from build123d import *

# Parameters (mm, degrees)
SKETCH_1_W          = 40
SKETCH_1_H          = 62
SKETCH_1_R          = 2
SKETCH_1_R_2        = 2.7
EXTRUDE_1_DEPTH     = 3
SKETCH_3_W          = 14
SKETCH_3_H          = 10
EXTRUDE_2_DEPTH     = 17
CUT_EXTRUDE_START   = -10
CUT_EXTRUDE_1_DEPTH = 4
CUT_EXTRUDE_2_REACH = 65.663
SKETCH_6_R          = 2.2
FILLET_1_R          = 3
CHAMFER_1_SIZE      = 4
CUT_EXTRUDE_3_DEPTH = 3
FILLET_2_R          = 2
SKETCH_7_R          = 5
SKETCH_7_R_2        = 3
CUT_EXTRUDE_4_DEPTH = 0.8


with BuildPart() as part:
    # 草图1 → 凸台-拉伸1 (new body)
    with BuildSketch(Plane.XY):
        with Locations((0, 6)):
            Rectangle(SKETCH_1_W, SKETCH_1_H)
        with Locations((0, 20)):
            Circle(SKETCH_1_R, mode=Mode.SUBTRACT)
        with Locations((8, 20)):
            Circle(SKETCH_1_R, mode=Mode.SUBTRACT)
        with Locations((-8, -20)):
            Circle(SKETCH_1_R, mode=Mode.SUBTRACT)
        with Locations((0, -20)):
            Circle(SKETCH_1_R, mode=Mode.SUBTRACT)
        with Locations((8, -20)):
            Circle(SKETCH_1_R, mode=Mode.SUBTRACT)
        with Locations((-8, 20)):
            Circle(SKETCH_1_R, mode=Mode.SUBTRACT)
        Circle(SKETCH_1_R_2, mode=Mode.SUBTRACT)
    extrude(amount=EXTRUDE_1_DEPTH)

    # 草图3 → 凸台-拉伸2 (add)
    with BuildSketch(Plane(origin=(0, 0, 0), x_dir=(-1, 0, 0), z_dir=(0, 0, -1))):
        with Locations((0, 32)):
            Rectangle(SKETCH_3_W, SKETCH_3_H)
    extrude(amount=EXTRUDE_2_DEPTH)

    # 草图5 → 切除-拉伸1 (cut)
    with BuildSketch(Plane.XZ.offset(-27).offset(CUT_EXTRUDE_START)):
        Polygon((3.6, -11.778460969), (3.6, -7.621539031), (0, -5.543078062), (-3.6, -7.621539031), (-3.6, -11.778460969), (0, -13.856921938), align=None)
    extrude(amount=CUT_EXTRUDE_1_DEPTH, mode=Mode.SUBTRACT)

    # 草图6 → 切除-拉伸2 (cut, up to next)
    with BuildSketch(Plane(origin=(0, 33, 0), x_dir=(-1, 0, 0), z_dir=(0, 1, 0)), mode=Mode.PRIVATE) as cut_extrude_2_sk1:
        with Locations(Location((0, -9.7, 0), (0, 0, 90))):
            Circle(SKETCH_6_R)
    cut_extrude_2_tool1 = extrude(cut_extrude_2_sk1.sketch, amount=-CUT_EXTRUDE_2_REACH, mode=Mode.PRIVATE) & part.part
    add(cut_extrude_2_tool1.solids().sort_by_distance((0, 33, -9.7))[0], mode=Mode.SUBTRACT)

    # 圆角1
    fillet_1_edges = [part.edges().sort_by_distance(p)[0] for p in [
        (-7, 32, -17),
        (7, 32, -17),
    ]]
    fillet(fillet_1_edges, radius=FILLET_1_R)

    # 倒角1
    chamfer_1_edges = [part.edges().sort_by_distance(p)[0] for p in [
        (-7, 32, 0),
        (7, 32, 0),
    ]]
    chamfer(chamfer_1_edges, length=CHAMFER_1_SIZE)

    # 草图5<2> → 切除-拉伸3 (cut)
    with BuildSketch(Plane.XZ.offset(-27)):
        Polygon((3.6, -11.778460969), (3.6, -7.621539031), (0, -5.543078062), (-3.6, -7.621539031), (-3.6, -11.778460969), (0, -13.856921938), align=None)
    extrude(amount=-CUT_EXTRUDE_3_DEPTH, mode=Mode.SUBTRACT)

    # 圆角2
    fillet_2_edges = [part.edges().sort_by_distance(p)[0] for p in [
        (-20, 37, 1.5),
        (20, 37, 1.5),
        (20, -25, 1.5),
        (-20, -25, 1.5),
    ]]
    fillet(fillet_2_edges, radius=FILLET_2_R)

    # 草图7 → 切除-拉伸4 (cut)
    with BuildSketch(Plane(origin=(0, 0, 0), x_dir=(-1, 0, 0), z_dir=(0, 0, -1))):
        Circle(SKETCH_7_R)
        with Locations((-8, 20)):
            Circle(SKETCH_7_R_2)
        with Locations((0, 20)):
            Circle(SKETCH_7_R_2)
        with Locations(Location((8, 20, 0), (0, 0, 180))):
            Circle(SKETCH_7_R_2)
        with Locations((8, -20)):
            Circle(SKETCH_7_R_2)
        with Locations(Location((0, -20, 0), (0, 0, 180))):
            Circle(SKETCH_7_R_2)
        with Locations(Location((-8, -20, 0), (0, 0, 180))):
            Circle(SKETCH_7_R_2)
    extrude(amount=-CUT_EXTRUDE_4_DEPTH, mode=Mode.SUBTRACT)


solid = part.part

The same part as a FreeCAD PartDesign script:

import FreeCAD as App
import Part
import Sketcher
Q = App.Units.Quantity


def edges_at(feature, points):
    """Names of the edges that pass closest to the given points."""
    edges = feature.Shape.Edges
    near = lambda p: min(range(len(edges)), key=lambda i: edges[i].distToShape(Part.Vertex(*p))[0])
    return sorted({f"Edge{near(p) + 1}" for p in points})


def add_polygon(sketch, points):
    """Adds a closed chain of lines whose ends are joined by coincident constraints."""
    first, n = sketch.GeometryCount, len(points)
    for a, b in zip(points, points[1:] + points[:1]):
        sketch.addGeometry(Part.LineSegment(App.Vector(*a, 0), App.Vector(*b, 0)), False)
    for i in range(n):
        sketch.addConstraint(Sketcher.Constraint("Coincident", first + i, 2, first + (i + 1) % n, 1))

doc = App.newDocument("Part")
body = doc.addObject("PartDesign::Body", "Body")

# Sketch on XY plane
sketch1 = body.newObject("Sketcher::SketchObject", "Sketch")
sketch1.AttachmentSupport = (doc.getObject("XY_Plane"), [""])
sketch1.MapMode = "FlatFace"
add_polygon(sketch1, [(-20, 37), (-20, -25), (20, -25), (20, 37)])  # lines 0-3
sketch1.addGeometry(Part.Circle(App.Vector(-8, -20, 0), App.Vector(0, 0, 1), 2), False)  # 4
sketch1.addGeometry(Part.Circle(App.Vector(0, -20, 0), App.Vector(0, 0, 1), 2), False)  # 5
sketch1.addGeometry(Part.Circle(App.Vector(8, -20, 0), App.Vector(0, 0, 1), 2), False)  # 6
sketch1.addGeometry(Part.Circle(App.Vector(-8, 20, 0), App.Vector(0, 0, 1), 2), False)  # 7
sketch1.addGeometry(Part.Circle(App.Vector(0, 0, 0), App.Vector(0, 0, 1), 2.7), False)  # 8
sketch1.addGeometry(Part.Circle(App.Vector(0, 20, 0), App.Vector(0, 0, 1), 2), False)  # 9
sketch1.addGeometry(Part.Circle(App.Vector(8, 20, 0), App.Vector(0, 0, 1), 2), False)  # 10
sketch1.addConstraint([
    Sketcher.Constraint("Vertical", 0),
    Sketcher.Constraint("Horizontal", 1),
    Sketcher.Constraint("Vertical", 2),
    Sketcher.Constraint("Horizontal", 3),
    Sketcher.Constraint("Coincident", 8, 3, -1, 1),
    Sketcher.Constraint("Equal", 4, 5),
    Sketcher.Constraint("Equal", 5, 6),
    Sketcher.Constraint("Equal", 6, 7),
    Sketcher.Constraint("Equal", 7, 9),
    Sketcher.Constraint("Equal", 9, 10),
    Sketcher.Constraint("Symmetric", 6, 3, 7, 3, -1, 1),
    Sketcher.Constraint("Symmetric", 5, 3, 9, 3, -1, 1),
    Sketcher.Constraint("Symmetric", 4, 3, 10, 3, -1, 1),
    Sketcher.Constraint("Symmetric", 4, 3, 6, 3, -2),
    Sketcher.Constraint("PointOnObject", 5, 3, -2),
    Sketcher.Constraint("Horizontal", 4, 3, 5, 3),
    Sketcher.Constraint("Diameter", 4, 4.0),
    Sketcher.Constraint("Diameter", 8, 5.4),
    Sketcher.Constraint("DistanceX", 1, 1, 1, 2, 40.0),
    Sketcher.Constraint("DistanceY", 0, 2, 0, 1, 62.0),
    Sketcher.Constraint("DistanceX", 4, 3, -1, 1, 8.0),
    Sketcher.Constraint("DistanceY", 4, 3, -1, 1, 20.0),
    Sketcher.Constraint("DistanceX", 0, 2, -1, 1, 20.0),
    Sketcher.Constraint("DistanceY", 0, 2, -1, 1, 25.0),
])
pad1 = body.newObject("PartDesign::Pad", "Pad")
pad1.Profile = sketch1
pad1.Length = 3

# Sketch on XY plane
sketch2 = body.newObject("Sketcher::SketchObject", "Sketch001")
sketch2.AttachmentSupport = (doc.getObject("XY_Plane"), [""])
sketch2.MapMode = "FlatFace"
add_polygon(sketch2, [(7, 37), (7, 27), (-7, 27), (-7, 37)])  # lines 0-3
sketch2.addConstraint([
    Sketcher.Constraint("Vertical", 0),
    Sketcher.Constraint("Horizontal", 1),
    Sketcher.Constraint("Vertical", 2),
    Sketcher.Constraint("Horizontal", 3),
    Sketcher.Constraint("DistanceX", 1, 2, 1, 1, 14.0),
    Sketcher.Constraint("DistanceY", 0, 2, 0, 1, 10.0),
    Sketcher.Constraint("DistanceX", -1, 1, 0, 2, 7.0),
    Sketcher.Constraint("DistanceY", -1, 1, 0, 2, 27.0),
])
pad2 = body.newObject("PartDesign::Pad", "Pad001")
pad2.Profile = sketch2
pad2.Length = 17
pad2.Reversed = True

# Sketch on XZ plane
sketch3 = body.newObject("Sketcher::SketchObject", "Sketch002")
sketch3.AttachmentSupport = (doc.getObject("XZ_Plane"), [""])
sketch3.MapMode = "FlatFace"
sketch3.AttachmentOffset = App.Placement(App.Vector(0, 0, -37), App.Rotation())
add_polygon(sketch3, [(3.6, -11.8), (3.6, -7.6), (0, -5.5), (-3.6, -7.6), (-3.6, -11.8), (0, -13.9)])  # lines 0-5
sketch3.addConstraint([
    Sketcher.Constraint("Vertical", 0),
    Sketcher.Constraint("Vertical", 3),
    Sketcher.Constraint("Symmetric", 0, 2, 2, 2, -2),
    Sketcher.Constraint("PointOnObject", 1, 2, -2),
    Sketcher.Constraint("PointOnObject", 4, 2, -2),
    Sketcher.Constraint("Parallel", 1, 4),
    Sketcher.Constraint("Parallel", 2, 5),
    Sketcher.Constraint("Angle", 1, Q("150 deg")),
    Sketcher.Constraint("DistanceX", -1, 1, 0, 2, 3.6),
    Sketcher.Constraint("DistanceY", 0, 1, 0, 2, 4.156922),
    Sketcher.Constraint("DistanceY", 0, 2, -1, 1, 7.621539),
])
pocket1 = body.newObject("PartDesign::Pocket", "Pocket")
pocket1.Profile = sketch3
pocket1.Length = 4
pocket1.Reversed = True

# Sketch on XZ plane
sketch4 = body.newObject("Sketcher::SketchObject", "Sketch003")
sketch4.AttachmentSupport = (doc.getObject("XZ_Plane"), [""])
sketch4.MapMode = "FlatFace"
sketch4.AttachmentOffset = App.Placement(App.Vector(0, 0, -33), App.Rotation())
sketch4.addGeometry(Part.Circle(App.Vector(0, -9.7, 0), App.Vector(0, 0, 1), 2.2), False)
sketch4.addConstraint([
    Sketcher.Constraint("PointOnObject", 0, 3, -2),
    Sketcher.Constraint("Diameter", 0, 4.4),
    Sketcher.Constraint("DistanceY", 0, 3, -1, 1, 9.7),
])
pocket2 = body.newObject("PartDesign::Pocket", "Pocket001")
pocket2.Profile = sketch4
pocket2.Type = "UpToFirst"
pocket2.Reversed = True
doc.recompute()

fillet = body.newObject("PartDesign::Fillet", "Fillet")
fillet.Base = (pocket2, edges_at(pocket2, [(-7, 32, -17), (7, 32, -17)]))
fillet.Radius = 3
doc.recompute()

chamfer = body.newObject("PartDesign::Chamfer", "Chamfer")
chamfer.Base = (fillet, edges_at(fillet, [(-7, 32, 0), (7, 32, 0)]))
chamfer.Size = 4

# Sketch on XZ plane
sketch5 = body.newObject("Sketcher::SketchObject", "Sketch004")
sketch5.AttachmentSupport = (doc.getObject("XZ_Plane"), [""])
sketch5.MapMode = "FlatFace"
sketch5.AttachmentOffset = App.Placement(App.Vector(0, 0, -27), App.Rotation())
add_polygon(sketch5, [(3.6, -11.8), (3.6, -7.6), (0, -5.5), (-3.6, -7.6), (-3.6, -11.8), (0, -13.9)])  # lines 0-5
sketch5.addConstraint([
    Sketcher.Constraint("Vertical", 0),
    Sketcher.Constraint("Vertical", 3),
    Sketcher.Constraint("Symmetric", 0, 2, 2, 2, -2),
    Sketcher.Constraint("PointOnObject", 1, 2, -2),
    Sketcher.Constraint("PointOnObject", 4, 2, -2),
    Sketcher.Constraint("Parallel", 1, 4),
    Sketcher.Constraint("Parallel", 2, 5),
    Sketcher.Constraint("Angle", 1, Q("150 deg")),
    Sketcher.Constraint("DistanceX", -1, 1, 0, 2, 3.6),
    Sketcher.Constraint("DistanceY", 0, 1, 0, 2, 4.156922),
    Sketcher.Constraint("DistanceY", 0, 2, -1, 1, 7.621539),
])
pocket3 = body.newObject("PartDesign::Pocket", "Pocket002")
pocket3.Profile = sketch5
pocket3.Length = 3
doc.recompute()

fillet2 = body.newObject("PartDesign::Fillet", "Fillet001")
fillet2.Base = (pocket3, edges_at(pocket3, [
    (-20, 37, 1.5),
    (20, 37, 1.5),
    (20, -25, 1.5),
    (-20, -25, 1.5),
]))
fillet2.Radius = 2

# Sketch on XY plane
sketch6 = body.newObject("Sketcher::SketchObject", "Sketch005")
sketch6.AttachmentSupport = (doc.getObject("XY_Plane"), [""])
sketch6.MapMode = "FlatFace"
sketch6.addGeometry([
    Part.Circle(App.Vector(0, 0, 0), App.Vector(0, 0, 1), 5),  # 0
    Part.Circle(App.Vector(8, 20, 0), App.Vector(0, 0, 1), 3),  # 1
    Part.Circle(App.Vector(0, 20, 0), App.Vector(0, 0, 1), 3),  # 2
    Part.Circle(App.Vector(-8, 20, 0), App.Vector(0, 0, 1), 3),  # 3
    Part.Circle(App.Vector(-8, -20, 0), App.Vector(0, 0, 1), 3),  # 4
    Part.Circle(App.Vector(0, -20, 0), App.Vector(0, 0, 1), 3),  # 5
    Part.Circle(App.Vector(8, -20, 0), App.Vector(0, 0, 1), 3),  # 6
], False)
sketch6.addConstraint([
    Sketcher.Constraint("Coincident", 0, 3, -1, 1),
    Sketcher.Constraint("Equal", 1, 2),
    Sketcher.Constraint("Equal", 2, 3),
    Sketcher.Constraint("Equal", 3, 4),
    Sketcher.Constraint("Equal", 4, 5),
    Sketcher.Constraint("Equal", 5, 6),
    Sketcher.Constraint("Symmetric", 1, 3, 4, 3, -1, 1),
    Sketcher.Constraint("Symmetric", 2, 3, 5, 3, -1, 1),
    Sketcher.Constraint("Symmetric", 3, 3, 6, 3, -1, 1),
    Sketcher.Constraint("Symmetric", 1, 3, 3, 3, -2),
    Sketcher.Constraint("PointOnObject", 2, 3, -2),
    Sketcher.Constraint("Horizontal", 1, 3, 2, 3),
    Sketcher.Constraint("Diameter", 0, 10.0),
    Sketcher.Constraint("Diameter", 1, 6.0),
    Sketcher.Constraint("DistanceX", -1, 1, 1, 3, 8.0),
    Sketcher.Constraint("DistanceY", -1, 1, 1, 3, 20.0),
])
pocket4 = body.newObject("PartDesign::Pocket", "Pocket003")
pocket4.Profile = sketch6
pocket4.Length = 0.8
pocket4.Reversed = True

doc.recompute()
